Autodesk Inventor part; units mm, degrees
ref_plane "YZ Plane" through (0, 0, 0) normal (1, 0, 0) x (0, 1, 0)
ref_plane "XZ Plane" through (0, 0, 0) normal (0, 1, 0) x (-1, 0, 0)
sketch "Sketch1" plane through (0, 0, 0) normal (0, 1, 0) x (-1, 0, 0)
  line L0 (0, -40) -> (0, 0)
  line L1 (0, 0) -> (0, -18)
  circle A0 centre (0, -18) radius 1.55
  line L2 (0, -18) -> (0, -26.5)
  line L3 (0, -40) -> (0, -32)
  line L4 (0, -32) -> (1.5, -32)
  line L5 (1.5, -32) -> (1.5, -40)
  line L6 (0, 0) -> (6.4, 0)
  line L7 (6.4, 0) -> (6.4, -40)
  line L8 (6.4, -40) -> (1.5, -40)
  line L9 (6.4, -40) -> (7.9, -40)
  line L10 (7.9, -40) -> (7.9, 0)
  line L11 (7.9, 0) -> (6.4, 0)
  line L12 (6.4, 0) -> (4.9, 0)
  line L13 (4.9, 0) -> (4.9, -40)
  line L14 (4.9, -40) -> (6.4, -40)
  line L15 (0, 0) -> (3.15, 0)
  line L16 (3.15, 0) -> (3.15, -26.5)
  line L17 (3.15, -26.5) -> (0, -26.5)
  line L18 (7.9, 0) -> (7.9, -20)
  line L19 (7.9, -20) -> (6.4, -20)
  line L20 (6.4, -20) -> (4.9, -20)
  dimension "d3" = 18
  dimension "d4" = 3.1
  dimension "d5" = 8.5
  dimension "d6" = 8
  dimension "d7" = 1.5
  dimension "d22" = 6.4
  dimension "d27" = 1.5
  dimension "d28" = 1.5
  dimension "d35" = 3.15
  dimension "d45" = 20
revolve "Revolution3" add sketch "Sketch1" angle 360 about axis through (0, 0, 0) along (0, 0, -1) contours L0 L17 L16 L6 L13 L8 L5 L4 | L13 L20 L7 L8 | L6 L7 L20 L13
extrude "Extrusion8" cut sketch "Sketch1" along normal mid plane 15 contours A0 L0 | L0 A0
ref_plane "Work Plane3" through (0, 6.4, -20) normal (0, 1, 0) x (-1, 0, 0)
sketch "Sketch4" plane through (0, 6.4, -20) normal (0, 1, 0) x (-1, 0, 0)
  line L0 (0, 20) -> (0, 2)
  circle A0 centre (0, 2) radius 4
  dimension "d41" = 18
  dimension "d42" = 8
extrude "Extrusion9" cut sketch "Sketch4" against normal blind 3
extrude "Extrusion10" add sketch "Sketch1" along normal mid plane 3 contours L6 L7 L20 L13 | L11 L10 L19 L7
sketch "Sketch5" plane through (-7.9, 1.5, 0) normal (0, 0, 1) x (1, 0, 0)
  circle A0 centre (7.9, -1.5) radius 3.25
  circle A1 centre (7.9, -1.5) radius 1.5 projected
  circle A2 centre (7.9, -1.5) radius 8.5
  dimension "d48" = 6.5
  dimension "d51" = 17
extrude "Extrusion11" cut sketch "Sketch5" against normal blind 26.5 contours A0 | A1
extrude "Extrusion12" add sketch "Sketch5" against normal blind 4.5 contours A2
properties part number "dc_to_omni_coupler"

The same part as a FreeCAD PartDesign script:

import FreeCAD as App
import Part
import Sketcher

V = App.Vector
Q = App.Units.Quantity


def add_polygon(sketch, points):
    """Adds a closed chain of lines whose ends are joined by coincident constraints."""
    first, n = sketch.GeometryCount, len(points)
    for a, b in zip(points, points[1:] + points[:1]):
        sketch.addGeometry(Part.LineSegment(App.Vector(*a, 0), App.Vector(*b, 0)), False)
    for i in range(n):
        sketch.addConstraint(Sketcher.Constraint("Coincident", first + i, 2, first + (i + 1) % n, 1))

doc = App.newDocument("Part")
body = doc.addObject("PartDesign::Body", "Body")

sketch1 = body.newObject("Sketcher::SketchObject", "Sketch")
sketch1.AttachmentSupport = (doc.getObject("XZ_Plane"), [""])
sketch1.MapMode = "FlatFace"
add_polygon(sketch1, [(0, -26.5), (0, -32), (-1.5, -32), (-1.5, -40), (-6.4, -40), (-6.4, 0), (-3.15, 0), (-3.15, -26.5)])
sketch1.addConstraint([
    Sketcher.Constraint("Vertical", 0),
    Sketcher.Constraint("Horizontal", 1),
    Sketcher.Constraint("Vertical", 2),
    Sketcher.Constraint("Horizontal", 3),
    Sketcher.Constraint("Vertical", 4),
    Sketcher.Constraint("Horizontal", 5),
    Sketcher.Constraint("Vertical", 6),
    Sketcher.Constraint("Horizontal", 7),
    Sketcher.Constraint("PointOnObject", 0, 2, -2),
    Sketcher.Constraint("PointOnObject", 4, 2, -1),
    Sketcher.Constraint("DistanceY", 2, 2, 2, 1, Q("8 mm")),
    Sketcher.Constraint("DistanceX", 1, 2, 1, 1, Q("1.5 mm")),
    Sketcher.Constraint("DistanceX", 7, 1, 7, 2, Q("3.15 mm")),
    Sketcher.Constraint("DistanceX", 3, 2, -1, 1, Q("6.4 mm")),
    Sketcher.Constraint("DistanceY", 4, 1, 4, 2, Q("40 mm")),
    Sketcher.Constraint("DistanceY", 0, 2, 0, 1, Q("5.5 mm")),
])
revolution = body.newObject("PartDesign::Revolution", "Revolution")
revolution.Profile = sketch1
revolution.ReferenceAxis = (sketch1, ["V_Axis"])
revolution.Angle = 360

sketch2 = body.newObject("Sketcher::SketchObject", "Sketch001")
sketch2.AttachmentSupport = (doc.getObject("XZ_Plane"), [""])
sketch2.MapMode = "FlatFace"
sketch2.addGeometry(Part.Circle(V(0, -18, 0), V(0, 0, 1), 1.55), False)
sketch2.addConstraint([
    Sketcher.Constraint("PointOnObject", 0, 3, -2),
    Sketcher.Constraint("Diameter", 0, Q("3.1 mm")),
    Sketcher.Constraint("DistanceY", 0, 3, -1, 1, Q("18 mm")),
])
pocket1 = body.newObject("PartDesign::Pocket", "Pocket")
pocket1.Profile = sketch2
pocket1.Length = 15
pocket1.Midplane = True

sketch3 = body.newObject("Sketcher::SketchObject", "Sketch002")
sketch3.AttachmentSupport = (doc.getObject("XZ_Plane"), [""])
sketch3.MapMode = "FlatFace"
sketch3.AttachmentOffset = App.Placement(V(0, 0, -6.4), App.Rotation())
sketch3.addGeometry(Part.Circle(V(0, -18, 0), V(0, 0, 1), 4), False)
sketch3.addConstraint([
    Sketcher.Constraint("PointOnObject", 0, 3, -2),
    Sketcher.Constraint("Diameter", 0, Q("8 mm")),
    Sketcher.Constraint("DistanceY", 0, 3, -1, 1, Q("18 mm")),
])
pocket2 = body.newObject("PartDesign::Pocket", "Pocket001")
pocket2.Profile = sketch3
pocket2.Length = 3
pocket2.Reversed = True

sketch4 = body.newObject("Sketcher::SketchObject", "Sketch003")
sketch4.AttachmentSupport = (doc.getObject("XZ_Plane"), [""])
sketch4.MapMode = "FlatFace"
add_polygon(sketch4, [(-4.9, 0), (-4.9, -20), (-7.9, -20), (-7.9, 0)])
sketch4.addConstraint([
    Sketcher.Constraint("Vertical", 0),
    Sketcher.Constraint("Horizontal", 1),
    Sketcher.Constraint("Vertical", 2),
    Sketcher.Constraint("Horizontal", 3),
    Sketcher.Constraint("PointOnObject", 2, 2, -1),
    Sketcher.Constraint("DistanceY", 0, 2, 0, 1, Q("20 mm")),
    Sketcher.Constraint("DistanceX", 1, 2, 1, 1, Q("3 mm")),
    Sketcher.Constraint("DistanceX", 0, 2, -1, 1, Q("4.9 mm")),
])
pad1 = body.newObject("PartDesign::Pad", "Pad")
pad1.Profile = sketch4
pad1.Length = 3
pad1.Midplane = True

sketch5 = body.newObject("Sketcher::SketchObject", "Sketch004")
sketch5.AttachmentSupport = (doc.getObject("XY_Plane"), [""])
sketch5.MapMode = "FlatFace"
sketch5.addGeometry(Part.Circle(V(0, 0, 0), V(0, 0, 1), 3.25), False)
sketch5.addConstraint([
    Sketcher.Constraint("Coincident", 0, 3, -1, 1),
    Sketcher.Constraint("Diameter", 0, Q("6.5 mm")),
])
pocket3 = body.newObject("PartDesign::Pocket", "Pocket002")
pocket3.Profile = sketch5
pocket3.Length = 26.5

sketch6 = body.newObject("Sketcher::SketchObject", "Sketch005")
sketch6.AttachmentSupport = (doc.getObject("XY_Plane"), [""])
sketch6.MapMode = "FlatFace"
sketch6.addGeometry([
    Part.Circle(V(0, 0, 0), V(0, 0, 1), 8.5),
    Part.Circle(V(0, 0, 0), V(0, 0, 1), 3.25),
], False)
sketch6.addConstraint([
    Sketcher.Constraint("Coincident", 0, 3, -1, 1),
    Sketcher.Constraint("Coincident", 1, 3, -1, 1),
    Sketcher.Constraint("Diameter", 0, Q("17 mm")),
    Sketcher.Constraint("Diameter", 1, Q("6.5 mm")),
])
pad2 = body.newObject("PartDesign::Pad", "Pad001")
pad2.Profile = sketch6
pad2.Length = 4.5
pad2.Reversed = True

doc.recompute()
